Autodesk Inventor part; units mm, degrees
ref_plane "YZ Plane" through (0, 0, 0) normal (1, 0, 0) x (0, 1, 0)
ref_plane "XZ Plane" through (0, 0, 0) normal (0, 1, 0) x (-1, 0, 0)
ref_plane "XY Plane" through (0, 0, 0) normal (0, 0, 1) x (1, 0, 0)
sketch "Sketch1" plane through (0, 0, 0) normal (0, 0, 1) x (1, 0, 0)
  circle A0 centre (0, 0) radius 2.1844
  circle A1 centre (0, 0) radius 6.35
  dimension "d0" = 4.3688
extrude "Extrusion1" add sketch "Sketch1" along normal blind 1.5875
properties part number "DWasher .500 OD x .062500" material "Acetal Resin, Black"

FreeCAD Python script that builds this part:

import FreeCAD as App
import Part
import Sketcher

V = App.Vector
Q = App.Units.Quantity

doc = App.newDocument("Part")
body = doc.addObject("PartDesign::Body", "Body")

sketch1 = body.newObject("Sketcher::SketchObject", "Sketch")
sketch1.AttachmentSupport = (doc.getObject("XY_Plane"), [""])
sketch1.MapMode = "FlatFace"
sketch1.addGeometry([
    Part.Circle(V(0, 0, 0), V(0, 0, 1), 6.3),
    Part.Circle(V(0, 0, 0), V(0, 0, 1), 2.2),
], False)
sketch1.addConstraint([
    Sketcher.Constraint("Coincident", 0, 3, -1, 1),
    Sketcher.Constraint("Coincident", 1, 3, -1, 1),
    Sketcher.Constraint("Diameter", 1, Q("0.172 in")),
    Sketcher.Constraint("Diameter", 0, Q("0.5 in")),
])
pad1 = body.newObject("PartDesign::Pad", "Pad")
pad1.Profile = sketch1
pad1.Length = Q("0.0625 in")

doc.recompute()
